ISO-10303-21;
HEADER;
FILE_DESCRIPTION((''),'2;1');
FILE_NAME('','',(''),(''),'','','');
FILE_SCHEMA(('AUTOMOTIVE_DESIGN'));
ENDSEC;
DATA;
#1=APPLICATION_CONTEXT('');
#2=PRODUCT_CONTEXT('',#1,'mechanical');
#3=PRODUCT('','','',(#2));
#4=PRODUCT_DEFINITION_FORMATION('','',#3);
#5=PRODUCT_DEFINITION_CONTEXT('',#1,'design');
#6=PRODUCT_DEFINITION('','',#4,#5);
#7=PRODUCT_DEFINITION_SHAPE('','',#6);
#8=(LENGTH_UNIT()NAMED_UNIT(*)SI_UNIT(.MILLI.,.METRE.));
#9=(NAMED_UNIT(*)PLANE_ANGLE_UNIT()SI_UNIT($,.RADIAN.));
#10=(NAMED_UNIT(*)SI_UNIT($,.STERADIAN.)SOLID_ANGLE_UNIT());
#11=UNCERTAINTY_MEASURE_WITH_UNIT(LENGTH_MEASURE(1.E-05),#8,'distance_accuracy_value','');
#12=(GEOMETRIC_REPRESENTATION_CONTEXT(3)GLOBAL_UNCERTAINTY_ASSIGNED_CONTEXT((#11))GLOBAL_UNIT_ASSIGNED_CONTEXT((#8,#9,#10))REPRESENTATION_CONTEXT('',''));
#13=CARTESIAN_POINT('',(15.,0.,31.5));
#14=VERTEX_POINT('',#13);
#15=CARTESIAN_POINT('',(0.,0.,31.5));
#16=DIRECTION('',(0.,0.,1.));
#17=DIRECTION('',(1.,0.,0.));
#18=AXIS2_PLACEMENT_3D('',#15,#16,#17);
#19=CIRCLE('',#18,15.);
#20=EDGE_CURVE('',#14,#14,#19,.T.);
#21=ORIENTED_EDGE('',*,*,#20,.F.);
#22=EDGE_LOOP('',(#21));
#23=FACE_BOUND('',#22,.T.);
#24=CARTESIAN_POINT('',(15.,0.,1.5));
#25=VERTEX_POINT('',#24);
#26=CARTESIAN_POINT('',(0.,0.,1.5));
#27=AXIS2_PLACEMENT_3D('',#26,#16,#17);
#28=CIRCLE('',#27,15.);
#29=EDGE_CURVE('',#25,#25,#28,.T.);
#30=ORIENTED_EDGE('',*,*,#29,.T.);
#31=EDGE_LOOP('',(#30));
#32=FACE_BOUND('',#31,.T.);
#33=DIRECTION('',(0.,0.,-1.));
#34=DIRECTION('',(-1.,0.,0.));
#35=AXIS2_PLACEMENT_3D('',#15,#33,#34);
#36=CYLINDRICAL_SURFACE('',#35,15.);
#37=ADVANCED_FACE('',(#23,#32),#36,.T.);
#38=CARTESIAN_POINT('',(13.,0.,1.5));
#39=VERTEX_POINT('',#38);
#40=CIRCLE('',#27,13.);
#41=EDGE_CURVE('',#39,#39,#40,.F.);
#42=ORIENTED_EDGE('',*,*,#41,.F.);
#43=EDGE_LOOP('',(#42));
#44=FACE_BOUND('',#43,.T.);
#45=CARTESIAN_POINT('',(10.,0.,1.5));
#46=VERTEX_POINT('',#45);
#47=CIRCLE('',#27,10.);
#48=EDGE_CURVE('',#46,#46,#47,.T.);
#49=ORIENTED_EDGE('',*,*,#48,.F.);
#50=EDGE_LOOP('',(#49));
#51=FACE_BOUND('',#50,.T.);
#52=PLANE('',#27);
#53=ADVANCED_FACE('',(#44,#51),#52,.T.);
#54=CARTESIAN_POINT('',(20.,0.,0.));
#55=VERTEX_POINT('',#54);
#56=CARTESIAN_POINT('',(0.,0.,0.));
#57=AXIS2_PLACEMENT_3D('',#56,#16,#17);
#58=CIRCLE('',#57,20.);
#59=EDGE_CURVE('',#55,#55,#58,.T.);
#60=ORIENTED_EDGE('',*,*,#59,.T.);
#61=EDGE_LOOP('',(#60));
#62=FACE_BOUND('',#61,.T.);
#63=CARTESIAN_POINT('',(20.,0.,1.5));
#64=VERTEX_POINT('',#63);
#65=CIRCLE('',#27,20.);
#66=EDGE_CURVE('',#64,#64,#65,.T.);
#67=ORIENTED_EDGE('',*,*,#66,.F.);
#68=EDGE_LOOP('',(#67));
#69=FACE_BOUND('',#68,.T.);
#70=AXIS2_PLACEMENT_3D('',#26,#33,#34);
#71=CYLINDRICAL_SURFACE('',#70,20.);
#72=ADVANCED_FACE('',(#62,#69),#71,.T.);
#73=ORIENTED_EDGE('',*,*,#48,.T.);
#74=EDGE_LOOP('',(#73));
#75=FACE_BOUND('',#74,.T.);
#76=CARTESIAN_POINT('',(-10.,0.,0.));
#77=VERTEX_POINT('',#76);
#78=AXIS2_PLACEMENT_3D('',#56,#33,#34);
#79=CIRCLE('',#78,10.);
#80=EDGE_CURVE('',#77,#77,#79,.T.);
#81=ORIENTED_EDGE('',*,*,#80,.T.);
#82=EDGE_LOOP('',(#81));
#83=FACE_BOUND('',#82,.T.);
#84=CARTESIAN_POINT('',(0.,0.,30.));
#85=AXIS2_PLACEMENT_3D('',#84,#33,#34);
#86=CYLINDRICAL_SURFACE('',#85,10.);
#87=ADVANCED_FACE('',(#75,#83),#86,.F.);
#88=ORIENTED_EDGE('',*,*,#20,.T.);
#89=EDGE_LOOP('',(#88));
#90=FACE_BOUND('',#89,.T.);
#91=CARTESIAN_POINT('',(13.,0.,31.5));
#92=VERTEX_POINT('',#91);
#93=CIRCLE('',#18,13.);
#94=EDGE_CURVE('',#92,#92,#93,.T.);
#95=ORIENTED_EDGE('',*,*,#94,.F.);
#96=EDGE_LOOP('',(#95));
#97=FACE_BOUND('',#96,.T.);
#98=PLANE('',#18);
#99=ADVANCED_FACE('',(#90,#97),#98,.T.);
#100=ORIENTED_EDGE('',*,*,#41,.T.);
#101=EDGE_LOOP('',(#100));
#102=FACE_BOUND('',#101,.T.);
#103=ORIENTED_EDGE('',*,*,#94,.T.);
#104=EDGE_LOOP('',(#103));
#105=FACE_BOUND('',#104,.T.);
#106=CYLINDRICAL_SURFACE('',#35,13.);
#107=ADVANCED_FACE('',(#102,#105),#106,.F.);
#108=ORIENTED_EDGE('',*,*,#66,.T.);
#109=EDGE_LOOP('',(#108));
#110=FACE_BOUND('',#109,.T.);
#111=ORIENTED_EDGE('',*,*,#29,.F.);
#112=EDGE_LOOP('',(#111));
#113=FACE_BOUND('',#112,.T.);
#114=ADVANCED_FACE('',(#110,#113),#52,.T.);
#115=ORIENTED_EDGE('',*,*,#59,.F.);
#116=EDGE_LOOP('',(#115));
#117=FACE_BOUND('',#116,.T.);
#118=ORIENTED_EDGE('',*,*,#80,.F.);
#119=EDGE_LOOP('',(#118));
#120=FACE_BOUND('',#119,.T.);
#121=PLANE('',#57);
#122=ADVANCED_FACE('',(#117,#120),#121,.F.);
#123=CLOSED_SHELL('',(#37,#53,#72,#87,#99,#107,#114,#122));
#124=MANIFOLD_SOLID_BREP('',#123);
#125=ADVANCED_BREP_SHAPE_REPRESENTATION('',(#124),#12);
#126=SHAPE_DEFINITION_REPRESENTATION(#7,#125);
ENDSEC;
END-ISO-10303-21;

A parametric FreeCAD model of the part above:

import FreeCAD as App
import Part
import Sketcher

V = App.Vector

doc = App.newDocument("Part")
body = doc.addObject("PartDesign::Body", "Body")

# Sketch on XY plane
sketch1 = body.newObject("Sketcher::SketchObject", "Sketch")
sketch1.AttachmentSupport = (doc.getObject("XY_Plane"), [""])
sketch1.MapMode = "FlatFace"
sketch1.addGeometry(Part.Circle(V(0, 0, 0), V(0, 0, 1), 20), False)
sketch1.addConstraint(Sketcher.Constraint("Coincident", 0, 3, -1, 1))
sketch1.addConstraint(Sketcher.Constraint("Diameter", 0, 40.0))
pad1 = body.newObject("PartDesign::Pad", "Pad")
pad1.Profile = sketch1
pad1.Length = 1.5

# Sketch on XY plane
sketch2 = body.newObject("Sketcher::SketchObject", "Sketch001")
sketch2.AttachmentSupport = (doc.getObject("XY_Plane"), [""])
sketch2.MapMode = "FlatFace"
sketch2.AttachmentOffset = App.Placement(V(0, 0, 1.5), App.Rotation())
sketch2.addGeometry(Part.Circle(V(0, 0, 0), V(0, 0, 1), 15), False)
sketch2.addGeometry(Part.Circle(V(0, 0, 0), V(0, 0, 1), 13), False)
sketch2.addConstraint(Sketcher.Constraint("Coincident", 0, 3, -1, 1))
sketch2.addConstraint(Sketcher.Constraint("Coincident", 1, 3, -1, 1))
sketch2.addConstraint(Sketcher.Constraint("Diameter", 0, 30.0))
sketch2.addConstraint(Sketcher.Constraint("Diameter", 1, 26.0))
pad2 = body.newObject("PartDesign::Pad", "Pad001")
pad2.Profile = sketch2
pad2.Length = 30

# Sketch on XY plane
sketch3 = body.newObject("Sketcher::SketchObject", "Sketch002")
sketch3.AttachmentSupport = (doc.getObject("XY_Plane"), [""])
sketch3.MapMode = "FlatFace"
sketch3.addGeometry(Part.Circle(V(0, 0, 0), V(0, 0, 1), 10), False)
sketch3.addConstraint(Sketcher.Constraint("Coincident", 0, 3, -1, 1))
sketch3.addConstraint(Sketcher.Constraint("Diameter", 0, 20.0))
pocket1 = body.newObject("PartDesign::Pocket", "Pocket")
pocket1.Profile = sketch3
pocket1.Length = 30
pocket1.Reversed = True

doc.recompute()
